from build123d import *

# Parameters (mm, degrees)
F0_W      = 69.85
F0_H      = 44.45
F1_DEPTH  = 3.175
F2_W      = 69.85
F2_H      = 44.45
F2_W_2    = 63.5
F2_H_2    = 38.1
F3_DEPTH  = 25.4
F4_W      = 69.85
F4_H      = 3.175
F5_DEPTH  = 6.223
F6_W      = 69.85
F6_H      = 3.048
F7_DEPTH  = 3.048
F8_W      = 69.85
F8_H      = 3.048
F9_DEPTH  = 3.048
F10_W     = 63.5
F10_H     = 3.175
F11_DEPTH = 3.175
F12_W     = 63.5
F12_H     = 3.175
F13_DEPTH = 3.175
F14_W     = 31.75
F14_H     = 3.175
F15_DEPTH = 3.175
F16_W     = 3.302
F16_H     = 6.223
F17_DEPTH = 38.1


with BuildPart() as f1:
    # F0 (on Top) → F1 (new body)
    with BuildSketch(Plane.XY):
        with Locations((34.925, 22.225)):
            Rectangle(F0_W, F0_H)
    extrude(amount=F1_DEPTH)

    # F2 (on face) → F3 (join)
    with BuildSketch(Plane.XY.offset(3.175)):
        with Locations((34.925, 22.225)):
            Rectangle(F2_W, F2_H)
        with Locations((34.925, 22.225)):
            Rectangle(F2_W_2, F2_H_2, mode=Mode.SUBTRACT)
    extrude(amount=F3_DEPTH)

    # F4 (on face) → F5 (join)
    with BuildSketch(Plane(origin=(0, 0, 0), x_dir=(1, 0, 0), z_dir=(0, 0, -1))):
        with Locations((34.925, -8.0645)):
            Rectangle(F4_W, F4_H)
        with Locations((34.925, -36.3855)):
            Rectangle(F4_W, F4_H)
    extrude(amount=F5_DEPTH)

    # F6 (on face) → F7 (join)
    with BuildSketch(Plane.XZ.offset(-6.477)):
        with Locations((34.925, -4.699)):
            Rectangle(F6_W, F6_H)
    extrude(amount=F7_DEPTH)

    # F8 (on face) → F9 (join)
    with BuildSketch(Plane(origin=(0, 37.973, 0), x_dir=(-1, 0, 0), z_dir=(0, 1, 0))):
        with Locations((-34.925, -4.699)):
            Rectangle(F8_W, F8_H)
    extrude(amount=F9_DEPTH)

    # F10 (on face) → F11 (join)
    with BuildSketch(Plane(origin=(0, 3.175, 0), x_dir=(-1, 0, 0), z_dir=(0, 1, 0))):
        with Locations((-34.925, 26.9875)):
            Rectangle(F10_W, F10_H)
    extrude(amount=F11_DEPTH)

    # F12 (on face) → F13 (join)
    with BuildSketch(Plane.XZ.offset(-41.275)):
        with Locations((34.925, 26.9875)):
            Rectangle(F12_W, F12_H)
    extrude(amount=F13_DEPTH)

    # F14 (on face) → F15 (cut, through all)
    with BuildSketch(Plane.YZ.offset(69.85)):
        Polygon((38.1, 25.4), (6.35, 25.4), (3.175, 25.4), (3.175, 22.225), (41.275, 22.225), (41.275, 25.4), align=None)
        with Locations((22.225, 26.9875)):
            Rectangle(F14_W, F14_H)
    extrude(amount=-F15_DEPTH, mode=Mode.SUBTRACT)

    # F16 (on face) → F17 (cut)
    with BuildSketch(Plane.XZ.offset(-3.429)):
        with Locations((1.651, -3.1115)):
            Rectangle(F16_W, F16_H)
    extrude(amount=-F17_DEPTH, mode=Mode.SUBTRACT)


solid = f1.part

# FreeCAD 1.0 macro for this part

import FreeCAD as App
import Part
import Sketcher
from FreeCAD import Vector
Q = App.Units.Quantity


def add_polygon(sketch, points):
    """Adds a closed chain of lines whose ends are joined by coincident constraints."""
    first, n = sketch.GeometryCount, len(points)
    for a, b in zip(points, points[1:] + points[:1]):
        sketch.addGeometry(Part.LineSegment(App.Vector(*a, 0), App.Vector(*b, 0)), False)
    for i in range(n):
        sketch.addConstraint(Sketcher.Constraint("Coincident", first + i, 2, first + (i + 1) % n, 1))

doc = App.newDocument("Part")
body = doc.addObject("PartDesign::Body", "Body")

# Sketch on XY plane
sketch1 = doc.addObject("Sketcher::SketchObject", "Sketch")
body.addObject(sketch1)
sketch1.AttachmentSupport = (doc.XY_Plane, [""])
sketch1.MapMode = "FlatFace"
add_polygon(sketch1, [(0, 44.45), (0, 0), (69.85, 0), (69.85, 44.45)])  # lines 0-3
sketch1.addConstraint([
    Sketcher.Constraint("Vertical", 0),
    Sketcher.Constraint("Horizontal", 1),
    Sketcher.Constraint("Vertical", 2),
    Sketcher.Constraint("Horizontal", 3),
    Sketcher.Constraint("Coincident", 0, 2, -1, 1),
    Sketcher.Constraint("DistanceX", 1, 1, 1, 2, Q("2.75 in")),
    Sketcher.Constraint("DistanceY", 0, 2, 0, 1, Q("1.75 in")),
])
pad1 = doc.addObject("PartDesign::Pad", "Pad")
body.addObject(pad1)
pad1.Profile = sketch1
pad1.Length = Q("0.125 in")

# Sketch on XY plane
sketch2 = doc.addObject("Sketcher::SketchObject", "Sketch001")
body.addObject(sketch2)
sketch2.AttachmentSupport = (doc.XY_Plane, [""])
sketch2.MapMode = "FlatFace"
sketch2.AttachmentOffset = App.Placement(Vector(0, 0, 0.125 * 25.4), App.Rotation())
add_polygon(sketch2, [(0, 44.45), (0, 0), (69.85, 0), (69.85, 44.45)])  # lines 0-3
add_polygon(sketch2, [(66.675, 3.175), (3.175, 3.175), (3.175, 41.275), (66.675, 41.275)])  # lines 4-7
sketch2.addConstraint([
    Sketcher.Constraint("Vertical", 0),
    Sketcher.Constraint("Horizontal", 1),
    Sketcher.Constraint("Vertical", 2),
    Sketcher.Constraint("Horizontal", 3),
    Sketcher.Constraint("Horizontal", 4),
    Sketcher.Constraint("Vertical", 5),
    Sketcher.Constraint("Horizontal", 6),
    Sketcher.Constraint("Vertical", 7),
    Sketcher.Constraint("Coincident", 0, 2, -1, 1),
    Sketcher.Constraint("DistanceX", 4, 2, 4, 1, Q("2.5 in")),
    Sketcher.Constraint("DistanceY", 5, 1, 5, 2, Q("1.5 in")),
    Sketcher.Constraint("DistanceX", 1, 1, 1, 2, Q("2.75 in")),
    Sketcher.Constraint("DistanceY", 0, 2, 0, 1, Q("1.75 in")),
    Sketcher.Constraint("DistanceX", -1, 1, 4, 2, Q("0.125 in")),
    Sketcher.Constraint("DistanceY", -1, 1, 4, 2, Q("0.125 in")),
])
pad2 = doc.addObject("PartDesign::Pad", "Pad001")
body.addObject(pad2)
pad2.Profile = sketch2
pad2.Length = Q("1 in")

# Sketch on XY plane
sketch3 = doc.addObject("Sketcher::SketchObject", "Sketch002")
body.addObject(sketch3)
sketch3.AttachmentSupport = (doc.XY_Plane, [""])
sketch3.MapMode = "FlatFace"
add_polygon(sketch3, [(0, 6.477), (0, 9.652), (69.85, 9.652), (69.85, 6.477)])  # lines 0-3
add_polygon(sketch3, [(0, 34.798), (0, 37.973), (69.85, 37.973), (69.85, 34.798)])  # lines 4-7
sketch3.addConstraint([
    Sketcher.Constraint("Vertical", 0),
    Sketcher.Constraint("Horizontal", 1),
    Sketcher.Constraint("Vertical", 2),
    Sketcher.Constraint("Horizontal", 3),
    Sketcher.Constraint("Vertical", 4),
    Sketcher.Constraint("Horizontal", 5),
    Sketcher.Constraint("Vertical", 6),
    Sketcher.Constraint("Horizontal", 7),
    Sketcher.Constraint("PointOnObject", 0, 2, -2),
    Sketcher.Constraint("PointOnObject", 4, 2, -2),
    Sketcher.Constraint("Vertical", 2, 2, 5, 2),
    Sketcher.Constraint("Equal", 2, 4),
    Sketcher.Constraint("DistanceX", 1, 1, 1, 2, Q("2.75 in")),
    Sketcher.Constraint("DistanceY", 0, 1, 0, 2, Q("0.125 in")),
    Sketcher.Constraint("DistanceY", -1, 1, 0, 2, Q("0.38 in")),
    Sketcher.Constraint("DistanceY", -1, 1, 6, 2, Q("1.37 in")),
])
pad3 = doc.addObject("PartDesign::Pad", "Pad002")
body.addObject(pad3)
pad3.Profile = sketch3
pad3.Length = Q("0.245 in")
pad3.Reversed = True

# Sketch on XZ plane
sketch4 = doc.addObject("Sketcher::SketchObject", "Sketch003")
body.addObject(sketch4)
sketch4.AttachmentSupport = (doc.XZ_Plane, [""])
sketch4.MapMode = "FlatFace"
sketch4.AttachmentOffset = App.Placement(Vector(0, 0, -0.255 * 25.4), App.Rotation())
add_polygon(sketch4, [(0, -3.175), (0, -6.223), (69.85, -6.223), (69.85, -3.175)])  # lines 0-3
sketch4.addConstraint([
    Sketcher.Constraint("Vertical", 0),
    Sketcher.Constraint("Horizontal", 1),
    Sketcher.Constraint("Vertical", 2),
    Sketcher.Constraint("Horizontal", 3),
    Sketcher.Constraint("PointOnObject", 0, 2, -2),
    Sketcher.Constraint("DistanceX", 1, 1, 1, 2, Q("2.75 in")),
    Sketcher.Constraint("DistanceY", 0, 2, 0, 1, Q("0.12 in")),
    Sketcher.Constraint("DistanceY", 0, 2, -1, 1, Q("0.245 in")),
])
pad4 = doc.addObject("PartDesign::Pad", "Pad003")
body.addObject(pad4)
pad4.Profile = sketch4
pad4.Length = Q("0.12 in")

# Sketch on XZ plane
sketch5 = doc.addObject("Sketcher::SketchObject", "Sketch004")
body.addObject(sketch5)
sketch5.AttachmentSupport = (doc.XZ_Plane, [""])
sketch5.MapMode = "FlatFace"
sketch5.AttachmentOffset = App.Placement(Vector(0, 0, -1.495 * 25.4), App.Rotation())
add_polygon(sketch5, [(69.85, -3.175), (69.85, -6.223), (0, -6.223), (0, -3.175)])  # lines 0-3
sketch5.addConstraint([
    Sketcher.Constraint("Vertical", 0),
    Sketcher.Constraint("Horizontal", 1),
    Sketcher.Constraint("Vertical", 2),
    Sketcher.Constraint("Horizontal", 3),
    Sketcher.Constraint("PointOnObject", 1, 2, -2),
    Sketcher.Constraint("DistanceX", 1, 2, 1, 1, Q("2.75 in")),
    Sketcher.Constraint("DistanceY", 0, 2, 0, 1, Q("0.12 in")),
    Sketcher.Constraint("DistanceY", 0, 2, -1, 1, Q("0.245 in")),
])
pad5 = doc.addObject("PartDesign::Pad", "Pad004")
body.addObject(pad5)
pad5.Profile = sketch5
pad5.Length = Q("0.12 in")
pad5.Reversed = True

# Sketch on XZ plane
sketch6 = doc.addObject("Sketcher::SketchObject", "Sketch005")
body.addObject(sketch6)
sketch6.AttachmentSupport = (doc.XZ_Plane, [""])
sketch6.MapMode = "FlatFace"
sketch6.AttachmentOffset = App.Placement(Vector(0, 0, -0.125 * 25.4), App.Rotation())
add_polygon(sketch6, [(66.675, 28.575), (66.675, 25.4), (3.175, 25.4), (3.175, 28.575)])  # lines 0-3
sketch6.addConstraint([
    Sketcher.Constraint("Vertical", 0),
    Sketcher.Constraint("Horizontal", 1),
    Sketcher.Constraint("Vertical", 2),
    Sketcher.Constraint("Horizontal", 3),
    Sketcher.Constraint("DistanceX", 1, 2, 1, 1, Q("2.5 in")),
    Sketcher.Constraint("DistanceY", -1, 1, 0, 2, Q("1 in")),
    Sketcher.Constraint("DistanceY", 0, 2, 0, 1, Q("0.125 in")),
    Sketcher.Constraint("DistanceX", -1, 1, 0, 2, Q("2.625 in")),
])
pad6 = doc.addObject("PartDesign::Pad", "Pad005")
body.addObject(pad6)
pad6.Profile = sketch6
pad6.Length = Q("0.125 in")
pad6.Reversed = True

# Sketch on XZ plane
sketch7 = doc.addObject("Sketcher::SketchObject", "Sketch006")
body.addObject(sketch7)
sketch7.AttachmentSupport = (doc.XZ_Plane, [""])
sketch7.MapMode = "FlatFace"
sketch7.AttachmentOffset = App.Placement(Vector(0, 0, -1.625 * 25.4), App.Rotation())
add_polygon(sketch7, [(3.175, 28.575), (3.175, 25.4), (66.675, 25.4), (66.675, 28.575)])  # lines 0-3
sketch7.addConstraint([
    Sketcher.Constraint("Vertical", 0),
    Sketcher.Constraint("Horizontal", 1),
    Sketcher.Constraint("Vertical", 2),
    Sketcher.Constraint("Horizontal", 3),
    Sketcher.Constraint("DistanceX", 1, 1, 1, 2, Q("2.5 in")),
    Sketcher.Constraint("DistanceY", -1, 1, 0, 2, Q("1 in")),
    Sketcher.Constraint("DistanceY", 0, 2, 0, 1, Q("0.125 in")),
    Sketcher.Constraint("DistanceX", -1, 1, 0, 2, Q("0.125 in")),
])
pad7 = doc.addObject("PartDesign::Pad", "Pad006")
body.addObject(pad7)
pad7.Profile = sketch7
pad7.Length = Q("0.125 in")

# Sketch on YZ plane
sketch8 = doc.addObject("Sketcher::SketchObject", "Sketch007")
body.addObject(sketch8)
sketch8.AttachmentSupport = (doc.YZ_Plane, [""])
sketch8.MapMode = "FlatFace"
sketch8.AttachmentOffset = App.Placement(Vector(0, 0, 2.75 * 25.4), App.Rotation())
add_polygon(sketch8, [(3.175, 25.4), (3.175, 22.225), (41.275, 22.225), (41.275, 25.4), (38.1, 25.4), (38.1, 28.575), (6.35, 28.575), (6.35, 25.4)])  # lines 0-7
sketch8.addConstraint([
    Sketcher.Constraint("Vertical", 0),
    Sketcher.Constraint("Horizontal", 1),
    Sketcher.Constraint("Vertical", 2),
    Sketcher.Constraint("Horizontal", 3),
    Sketcher.Constraint("Vertical", 4),
    Sketcher.Constraint("Horizontal", 5),
    Sketcher.Constraint("Vertical", 6),
    Sketcher.Constraint("Horizontal", 7),
    Sketcher.Constraint("Horizontal", 3, 2, 6, 2),
    Sketcher.Constraint("Equal", 3, 7),
    Sketcher.Constraint("Equal", 7, 0),
    Sketcher.Constraint("Equal", 2, 4),
    Sketcher.Constraint("DistanceX", 1, 1, 1, 2, Q("1.5 in")),
    Sketcher.Constraint("DistanceY", -1, 1, 2, 2, Q("1 in")),
    Sketcher.Constraint("DistanceX", 5, 2, 5, 1, Q("1.25 in")),
    Sketcher.Constraint("DistanceX", -1, 1, 3, 2, Q("1.5 in")),
])
pocket1 = doc.addObject("PartDesign::Pocket", "Pocket")
body.addObject(pocket1)
pocket1.Profile = sketch8
pocket1.Length = Q("0.125 in")

# Sketch on XZ plane
sketch9 = doc.addObject("Sketcher::SketchObject", "Sketch008")
body.addObject(sketch9)
sketch9.AttachmentSupport = (doc.XZ_Plane, [""])
sketch9.MapMode = "FlatFace"
sketch9.AttachmentOffset = App.Placement(Vector(0, 0, -0.135 * 25.4), App.Rotation())
add_polygon(sketch9, [(0, 0), (0, -6.223), (3.302, -6.223), (3.302, 0)])  # lines 0-3
sketch9.addConstraint([
    Sketcher.Constraint("Vertical", 0),
    Sketcher.Constraint("Horizontal", 1),
    Sketcher.Constraint("Vertical", 2),
    Sketcher.Constraint("Horizontal", 3),
    Sketcher.Constraint("Coincident", 3, 2, -1, 1),
    Sketcher.Constraint("DistanceX", 1, 1, 1, 2, Q("0.13 in")),
    Sketcher.Constraint("DistanceY", 0, 2, 0, 1, Q("0.245 in")),
])
pocket2 = doc.addObject("PartDesign::Pocket", "Pocket001")
body.addObject(pocket2)
pocket2.Profile = sketch9
pocket2.Length = Q("1.5 in")

doc.recompute()
